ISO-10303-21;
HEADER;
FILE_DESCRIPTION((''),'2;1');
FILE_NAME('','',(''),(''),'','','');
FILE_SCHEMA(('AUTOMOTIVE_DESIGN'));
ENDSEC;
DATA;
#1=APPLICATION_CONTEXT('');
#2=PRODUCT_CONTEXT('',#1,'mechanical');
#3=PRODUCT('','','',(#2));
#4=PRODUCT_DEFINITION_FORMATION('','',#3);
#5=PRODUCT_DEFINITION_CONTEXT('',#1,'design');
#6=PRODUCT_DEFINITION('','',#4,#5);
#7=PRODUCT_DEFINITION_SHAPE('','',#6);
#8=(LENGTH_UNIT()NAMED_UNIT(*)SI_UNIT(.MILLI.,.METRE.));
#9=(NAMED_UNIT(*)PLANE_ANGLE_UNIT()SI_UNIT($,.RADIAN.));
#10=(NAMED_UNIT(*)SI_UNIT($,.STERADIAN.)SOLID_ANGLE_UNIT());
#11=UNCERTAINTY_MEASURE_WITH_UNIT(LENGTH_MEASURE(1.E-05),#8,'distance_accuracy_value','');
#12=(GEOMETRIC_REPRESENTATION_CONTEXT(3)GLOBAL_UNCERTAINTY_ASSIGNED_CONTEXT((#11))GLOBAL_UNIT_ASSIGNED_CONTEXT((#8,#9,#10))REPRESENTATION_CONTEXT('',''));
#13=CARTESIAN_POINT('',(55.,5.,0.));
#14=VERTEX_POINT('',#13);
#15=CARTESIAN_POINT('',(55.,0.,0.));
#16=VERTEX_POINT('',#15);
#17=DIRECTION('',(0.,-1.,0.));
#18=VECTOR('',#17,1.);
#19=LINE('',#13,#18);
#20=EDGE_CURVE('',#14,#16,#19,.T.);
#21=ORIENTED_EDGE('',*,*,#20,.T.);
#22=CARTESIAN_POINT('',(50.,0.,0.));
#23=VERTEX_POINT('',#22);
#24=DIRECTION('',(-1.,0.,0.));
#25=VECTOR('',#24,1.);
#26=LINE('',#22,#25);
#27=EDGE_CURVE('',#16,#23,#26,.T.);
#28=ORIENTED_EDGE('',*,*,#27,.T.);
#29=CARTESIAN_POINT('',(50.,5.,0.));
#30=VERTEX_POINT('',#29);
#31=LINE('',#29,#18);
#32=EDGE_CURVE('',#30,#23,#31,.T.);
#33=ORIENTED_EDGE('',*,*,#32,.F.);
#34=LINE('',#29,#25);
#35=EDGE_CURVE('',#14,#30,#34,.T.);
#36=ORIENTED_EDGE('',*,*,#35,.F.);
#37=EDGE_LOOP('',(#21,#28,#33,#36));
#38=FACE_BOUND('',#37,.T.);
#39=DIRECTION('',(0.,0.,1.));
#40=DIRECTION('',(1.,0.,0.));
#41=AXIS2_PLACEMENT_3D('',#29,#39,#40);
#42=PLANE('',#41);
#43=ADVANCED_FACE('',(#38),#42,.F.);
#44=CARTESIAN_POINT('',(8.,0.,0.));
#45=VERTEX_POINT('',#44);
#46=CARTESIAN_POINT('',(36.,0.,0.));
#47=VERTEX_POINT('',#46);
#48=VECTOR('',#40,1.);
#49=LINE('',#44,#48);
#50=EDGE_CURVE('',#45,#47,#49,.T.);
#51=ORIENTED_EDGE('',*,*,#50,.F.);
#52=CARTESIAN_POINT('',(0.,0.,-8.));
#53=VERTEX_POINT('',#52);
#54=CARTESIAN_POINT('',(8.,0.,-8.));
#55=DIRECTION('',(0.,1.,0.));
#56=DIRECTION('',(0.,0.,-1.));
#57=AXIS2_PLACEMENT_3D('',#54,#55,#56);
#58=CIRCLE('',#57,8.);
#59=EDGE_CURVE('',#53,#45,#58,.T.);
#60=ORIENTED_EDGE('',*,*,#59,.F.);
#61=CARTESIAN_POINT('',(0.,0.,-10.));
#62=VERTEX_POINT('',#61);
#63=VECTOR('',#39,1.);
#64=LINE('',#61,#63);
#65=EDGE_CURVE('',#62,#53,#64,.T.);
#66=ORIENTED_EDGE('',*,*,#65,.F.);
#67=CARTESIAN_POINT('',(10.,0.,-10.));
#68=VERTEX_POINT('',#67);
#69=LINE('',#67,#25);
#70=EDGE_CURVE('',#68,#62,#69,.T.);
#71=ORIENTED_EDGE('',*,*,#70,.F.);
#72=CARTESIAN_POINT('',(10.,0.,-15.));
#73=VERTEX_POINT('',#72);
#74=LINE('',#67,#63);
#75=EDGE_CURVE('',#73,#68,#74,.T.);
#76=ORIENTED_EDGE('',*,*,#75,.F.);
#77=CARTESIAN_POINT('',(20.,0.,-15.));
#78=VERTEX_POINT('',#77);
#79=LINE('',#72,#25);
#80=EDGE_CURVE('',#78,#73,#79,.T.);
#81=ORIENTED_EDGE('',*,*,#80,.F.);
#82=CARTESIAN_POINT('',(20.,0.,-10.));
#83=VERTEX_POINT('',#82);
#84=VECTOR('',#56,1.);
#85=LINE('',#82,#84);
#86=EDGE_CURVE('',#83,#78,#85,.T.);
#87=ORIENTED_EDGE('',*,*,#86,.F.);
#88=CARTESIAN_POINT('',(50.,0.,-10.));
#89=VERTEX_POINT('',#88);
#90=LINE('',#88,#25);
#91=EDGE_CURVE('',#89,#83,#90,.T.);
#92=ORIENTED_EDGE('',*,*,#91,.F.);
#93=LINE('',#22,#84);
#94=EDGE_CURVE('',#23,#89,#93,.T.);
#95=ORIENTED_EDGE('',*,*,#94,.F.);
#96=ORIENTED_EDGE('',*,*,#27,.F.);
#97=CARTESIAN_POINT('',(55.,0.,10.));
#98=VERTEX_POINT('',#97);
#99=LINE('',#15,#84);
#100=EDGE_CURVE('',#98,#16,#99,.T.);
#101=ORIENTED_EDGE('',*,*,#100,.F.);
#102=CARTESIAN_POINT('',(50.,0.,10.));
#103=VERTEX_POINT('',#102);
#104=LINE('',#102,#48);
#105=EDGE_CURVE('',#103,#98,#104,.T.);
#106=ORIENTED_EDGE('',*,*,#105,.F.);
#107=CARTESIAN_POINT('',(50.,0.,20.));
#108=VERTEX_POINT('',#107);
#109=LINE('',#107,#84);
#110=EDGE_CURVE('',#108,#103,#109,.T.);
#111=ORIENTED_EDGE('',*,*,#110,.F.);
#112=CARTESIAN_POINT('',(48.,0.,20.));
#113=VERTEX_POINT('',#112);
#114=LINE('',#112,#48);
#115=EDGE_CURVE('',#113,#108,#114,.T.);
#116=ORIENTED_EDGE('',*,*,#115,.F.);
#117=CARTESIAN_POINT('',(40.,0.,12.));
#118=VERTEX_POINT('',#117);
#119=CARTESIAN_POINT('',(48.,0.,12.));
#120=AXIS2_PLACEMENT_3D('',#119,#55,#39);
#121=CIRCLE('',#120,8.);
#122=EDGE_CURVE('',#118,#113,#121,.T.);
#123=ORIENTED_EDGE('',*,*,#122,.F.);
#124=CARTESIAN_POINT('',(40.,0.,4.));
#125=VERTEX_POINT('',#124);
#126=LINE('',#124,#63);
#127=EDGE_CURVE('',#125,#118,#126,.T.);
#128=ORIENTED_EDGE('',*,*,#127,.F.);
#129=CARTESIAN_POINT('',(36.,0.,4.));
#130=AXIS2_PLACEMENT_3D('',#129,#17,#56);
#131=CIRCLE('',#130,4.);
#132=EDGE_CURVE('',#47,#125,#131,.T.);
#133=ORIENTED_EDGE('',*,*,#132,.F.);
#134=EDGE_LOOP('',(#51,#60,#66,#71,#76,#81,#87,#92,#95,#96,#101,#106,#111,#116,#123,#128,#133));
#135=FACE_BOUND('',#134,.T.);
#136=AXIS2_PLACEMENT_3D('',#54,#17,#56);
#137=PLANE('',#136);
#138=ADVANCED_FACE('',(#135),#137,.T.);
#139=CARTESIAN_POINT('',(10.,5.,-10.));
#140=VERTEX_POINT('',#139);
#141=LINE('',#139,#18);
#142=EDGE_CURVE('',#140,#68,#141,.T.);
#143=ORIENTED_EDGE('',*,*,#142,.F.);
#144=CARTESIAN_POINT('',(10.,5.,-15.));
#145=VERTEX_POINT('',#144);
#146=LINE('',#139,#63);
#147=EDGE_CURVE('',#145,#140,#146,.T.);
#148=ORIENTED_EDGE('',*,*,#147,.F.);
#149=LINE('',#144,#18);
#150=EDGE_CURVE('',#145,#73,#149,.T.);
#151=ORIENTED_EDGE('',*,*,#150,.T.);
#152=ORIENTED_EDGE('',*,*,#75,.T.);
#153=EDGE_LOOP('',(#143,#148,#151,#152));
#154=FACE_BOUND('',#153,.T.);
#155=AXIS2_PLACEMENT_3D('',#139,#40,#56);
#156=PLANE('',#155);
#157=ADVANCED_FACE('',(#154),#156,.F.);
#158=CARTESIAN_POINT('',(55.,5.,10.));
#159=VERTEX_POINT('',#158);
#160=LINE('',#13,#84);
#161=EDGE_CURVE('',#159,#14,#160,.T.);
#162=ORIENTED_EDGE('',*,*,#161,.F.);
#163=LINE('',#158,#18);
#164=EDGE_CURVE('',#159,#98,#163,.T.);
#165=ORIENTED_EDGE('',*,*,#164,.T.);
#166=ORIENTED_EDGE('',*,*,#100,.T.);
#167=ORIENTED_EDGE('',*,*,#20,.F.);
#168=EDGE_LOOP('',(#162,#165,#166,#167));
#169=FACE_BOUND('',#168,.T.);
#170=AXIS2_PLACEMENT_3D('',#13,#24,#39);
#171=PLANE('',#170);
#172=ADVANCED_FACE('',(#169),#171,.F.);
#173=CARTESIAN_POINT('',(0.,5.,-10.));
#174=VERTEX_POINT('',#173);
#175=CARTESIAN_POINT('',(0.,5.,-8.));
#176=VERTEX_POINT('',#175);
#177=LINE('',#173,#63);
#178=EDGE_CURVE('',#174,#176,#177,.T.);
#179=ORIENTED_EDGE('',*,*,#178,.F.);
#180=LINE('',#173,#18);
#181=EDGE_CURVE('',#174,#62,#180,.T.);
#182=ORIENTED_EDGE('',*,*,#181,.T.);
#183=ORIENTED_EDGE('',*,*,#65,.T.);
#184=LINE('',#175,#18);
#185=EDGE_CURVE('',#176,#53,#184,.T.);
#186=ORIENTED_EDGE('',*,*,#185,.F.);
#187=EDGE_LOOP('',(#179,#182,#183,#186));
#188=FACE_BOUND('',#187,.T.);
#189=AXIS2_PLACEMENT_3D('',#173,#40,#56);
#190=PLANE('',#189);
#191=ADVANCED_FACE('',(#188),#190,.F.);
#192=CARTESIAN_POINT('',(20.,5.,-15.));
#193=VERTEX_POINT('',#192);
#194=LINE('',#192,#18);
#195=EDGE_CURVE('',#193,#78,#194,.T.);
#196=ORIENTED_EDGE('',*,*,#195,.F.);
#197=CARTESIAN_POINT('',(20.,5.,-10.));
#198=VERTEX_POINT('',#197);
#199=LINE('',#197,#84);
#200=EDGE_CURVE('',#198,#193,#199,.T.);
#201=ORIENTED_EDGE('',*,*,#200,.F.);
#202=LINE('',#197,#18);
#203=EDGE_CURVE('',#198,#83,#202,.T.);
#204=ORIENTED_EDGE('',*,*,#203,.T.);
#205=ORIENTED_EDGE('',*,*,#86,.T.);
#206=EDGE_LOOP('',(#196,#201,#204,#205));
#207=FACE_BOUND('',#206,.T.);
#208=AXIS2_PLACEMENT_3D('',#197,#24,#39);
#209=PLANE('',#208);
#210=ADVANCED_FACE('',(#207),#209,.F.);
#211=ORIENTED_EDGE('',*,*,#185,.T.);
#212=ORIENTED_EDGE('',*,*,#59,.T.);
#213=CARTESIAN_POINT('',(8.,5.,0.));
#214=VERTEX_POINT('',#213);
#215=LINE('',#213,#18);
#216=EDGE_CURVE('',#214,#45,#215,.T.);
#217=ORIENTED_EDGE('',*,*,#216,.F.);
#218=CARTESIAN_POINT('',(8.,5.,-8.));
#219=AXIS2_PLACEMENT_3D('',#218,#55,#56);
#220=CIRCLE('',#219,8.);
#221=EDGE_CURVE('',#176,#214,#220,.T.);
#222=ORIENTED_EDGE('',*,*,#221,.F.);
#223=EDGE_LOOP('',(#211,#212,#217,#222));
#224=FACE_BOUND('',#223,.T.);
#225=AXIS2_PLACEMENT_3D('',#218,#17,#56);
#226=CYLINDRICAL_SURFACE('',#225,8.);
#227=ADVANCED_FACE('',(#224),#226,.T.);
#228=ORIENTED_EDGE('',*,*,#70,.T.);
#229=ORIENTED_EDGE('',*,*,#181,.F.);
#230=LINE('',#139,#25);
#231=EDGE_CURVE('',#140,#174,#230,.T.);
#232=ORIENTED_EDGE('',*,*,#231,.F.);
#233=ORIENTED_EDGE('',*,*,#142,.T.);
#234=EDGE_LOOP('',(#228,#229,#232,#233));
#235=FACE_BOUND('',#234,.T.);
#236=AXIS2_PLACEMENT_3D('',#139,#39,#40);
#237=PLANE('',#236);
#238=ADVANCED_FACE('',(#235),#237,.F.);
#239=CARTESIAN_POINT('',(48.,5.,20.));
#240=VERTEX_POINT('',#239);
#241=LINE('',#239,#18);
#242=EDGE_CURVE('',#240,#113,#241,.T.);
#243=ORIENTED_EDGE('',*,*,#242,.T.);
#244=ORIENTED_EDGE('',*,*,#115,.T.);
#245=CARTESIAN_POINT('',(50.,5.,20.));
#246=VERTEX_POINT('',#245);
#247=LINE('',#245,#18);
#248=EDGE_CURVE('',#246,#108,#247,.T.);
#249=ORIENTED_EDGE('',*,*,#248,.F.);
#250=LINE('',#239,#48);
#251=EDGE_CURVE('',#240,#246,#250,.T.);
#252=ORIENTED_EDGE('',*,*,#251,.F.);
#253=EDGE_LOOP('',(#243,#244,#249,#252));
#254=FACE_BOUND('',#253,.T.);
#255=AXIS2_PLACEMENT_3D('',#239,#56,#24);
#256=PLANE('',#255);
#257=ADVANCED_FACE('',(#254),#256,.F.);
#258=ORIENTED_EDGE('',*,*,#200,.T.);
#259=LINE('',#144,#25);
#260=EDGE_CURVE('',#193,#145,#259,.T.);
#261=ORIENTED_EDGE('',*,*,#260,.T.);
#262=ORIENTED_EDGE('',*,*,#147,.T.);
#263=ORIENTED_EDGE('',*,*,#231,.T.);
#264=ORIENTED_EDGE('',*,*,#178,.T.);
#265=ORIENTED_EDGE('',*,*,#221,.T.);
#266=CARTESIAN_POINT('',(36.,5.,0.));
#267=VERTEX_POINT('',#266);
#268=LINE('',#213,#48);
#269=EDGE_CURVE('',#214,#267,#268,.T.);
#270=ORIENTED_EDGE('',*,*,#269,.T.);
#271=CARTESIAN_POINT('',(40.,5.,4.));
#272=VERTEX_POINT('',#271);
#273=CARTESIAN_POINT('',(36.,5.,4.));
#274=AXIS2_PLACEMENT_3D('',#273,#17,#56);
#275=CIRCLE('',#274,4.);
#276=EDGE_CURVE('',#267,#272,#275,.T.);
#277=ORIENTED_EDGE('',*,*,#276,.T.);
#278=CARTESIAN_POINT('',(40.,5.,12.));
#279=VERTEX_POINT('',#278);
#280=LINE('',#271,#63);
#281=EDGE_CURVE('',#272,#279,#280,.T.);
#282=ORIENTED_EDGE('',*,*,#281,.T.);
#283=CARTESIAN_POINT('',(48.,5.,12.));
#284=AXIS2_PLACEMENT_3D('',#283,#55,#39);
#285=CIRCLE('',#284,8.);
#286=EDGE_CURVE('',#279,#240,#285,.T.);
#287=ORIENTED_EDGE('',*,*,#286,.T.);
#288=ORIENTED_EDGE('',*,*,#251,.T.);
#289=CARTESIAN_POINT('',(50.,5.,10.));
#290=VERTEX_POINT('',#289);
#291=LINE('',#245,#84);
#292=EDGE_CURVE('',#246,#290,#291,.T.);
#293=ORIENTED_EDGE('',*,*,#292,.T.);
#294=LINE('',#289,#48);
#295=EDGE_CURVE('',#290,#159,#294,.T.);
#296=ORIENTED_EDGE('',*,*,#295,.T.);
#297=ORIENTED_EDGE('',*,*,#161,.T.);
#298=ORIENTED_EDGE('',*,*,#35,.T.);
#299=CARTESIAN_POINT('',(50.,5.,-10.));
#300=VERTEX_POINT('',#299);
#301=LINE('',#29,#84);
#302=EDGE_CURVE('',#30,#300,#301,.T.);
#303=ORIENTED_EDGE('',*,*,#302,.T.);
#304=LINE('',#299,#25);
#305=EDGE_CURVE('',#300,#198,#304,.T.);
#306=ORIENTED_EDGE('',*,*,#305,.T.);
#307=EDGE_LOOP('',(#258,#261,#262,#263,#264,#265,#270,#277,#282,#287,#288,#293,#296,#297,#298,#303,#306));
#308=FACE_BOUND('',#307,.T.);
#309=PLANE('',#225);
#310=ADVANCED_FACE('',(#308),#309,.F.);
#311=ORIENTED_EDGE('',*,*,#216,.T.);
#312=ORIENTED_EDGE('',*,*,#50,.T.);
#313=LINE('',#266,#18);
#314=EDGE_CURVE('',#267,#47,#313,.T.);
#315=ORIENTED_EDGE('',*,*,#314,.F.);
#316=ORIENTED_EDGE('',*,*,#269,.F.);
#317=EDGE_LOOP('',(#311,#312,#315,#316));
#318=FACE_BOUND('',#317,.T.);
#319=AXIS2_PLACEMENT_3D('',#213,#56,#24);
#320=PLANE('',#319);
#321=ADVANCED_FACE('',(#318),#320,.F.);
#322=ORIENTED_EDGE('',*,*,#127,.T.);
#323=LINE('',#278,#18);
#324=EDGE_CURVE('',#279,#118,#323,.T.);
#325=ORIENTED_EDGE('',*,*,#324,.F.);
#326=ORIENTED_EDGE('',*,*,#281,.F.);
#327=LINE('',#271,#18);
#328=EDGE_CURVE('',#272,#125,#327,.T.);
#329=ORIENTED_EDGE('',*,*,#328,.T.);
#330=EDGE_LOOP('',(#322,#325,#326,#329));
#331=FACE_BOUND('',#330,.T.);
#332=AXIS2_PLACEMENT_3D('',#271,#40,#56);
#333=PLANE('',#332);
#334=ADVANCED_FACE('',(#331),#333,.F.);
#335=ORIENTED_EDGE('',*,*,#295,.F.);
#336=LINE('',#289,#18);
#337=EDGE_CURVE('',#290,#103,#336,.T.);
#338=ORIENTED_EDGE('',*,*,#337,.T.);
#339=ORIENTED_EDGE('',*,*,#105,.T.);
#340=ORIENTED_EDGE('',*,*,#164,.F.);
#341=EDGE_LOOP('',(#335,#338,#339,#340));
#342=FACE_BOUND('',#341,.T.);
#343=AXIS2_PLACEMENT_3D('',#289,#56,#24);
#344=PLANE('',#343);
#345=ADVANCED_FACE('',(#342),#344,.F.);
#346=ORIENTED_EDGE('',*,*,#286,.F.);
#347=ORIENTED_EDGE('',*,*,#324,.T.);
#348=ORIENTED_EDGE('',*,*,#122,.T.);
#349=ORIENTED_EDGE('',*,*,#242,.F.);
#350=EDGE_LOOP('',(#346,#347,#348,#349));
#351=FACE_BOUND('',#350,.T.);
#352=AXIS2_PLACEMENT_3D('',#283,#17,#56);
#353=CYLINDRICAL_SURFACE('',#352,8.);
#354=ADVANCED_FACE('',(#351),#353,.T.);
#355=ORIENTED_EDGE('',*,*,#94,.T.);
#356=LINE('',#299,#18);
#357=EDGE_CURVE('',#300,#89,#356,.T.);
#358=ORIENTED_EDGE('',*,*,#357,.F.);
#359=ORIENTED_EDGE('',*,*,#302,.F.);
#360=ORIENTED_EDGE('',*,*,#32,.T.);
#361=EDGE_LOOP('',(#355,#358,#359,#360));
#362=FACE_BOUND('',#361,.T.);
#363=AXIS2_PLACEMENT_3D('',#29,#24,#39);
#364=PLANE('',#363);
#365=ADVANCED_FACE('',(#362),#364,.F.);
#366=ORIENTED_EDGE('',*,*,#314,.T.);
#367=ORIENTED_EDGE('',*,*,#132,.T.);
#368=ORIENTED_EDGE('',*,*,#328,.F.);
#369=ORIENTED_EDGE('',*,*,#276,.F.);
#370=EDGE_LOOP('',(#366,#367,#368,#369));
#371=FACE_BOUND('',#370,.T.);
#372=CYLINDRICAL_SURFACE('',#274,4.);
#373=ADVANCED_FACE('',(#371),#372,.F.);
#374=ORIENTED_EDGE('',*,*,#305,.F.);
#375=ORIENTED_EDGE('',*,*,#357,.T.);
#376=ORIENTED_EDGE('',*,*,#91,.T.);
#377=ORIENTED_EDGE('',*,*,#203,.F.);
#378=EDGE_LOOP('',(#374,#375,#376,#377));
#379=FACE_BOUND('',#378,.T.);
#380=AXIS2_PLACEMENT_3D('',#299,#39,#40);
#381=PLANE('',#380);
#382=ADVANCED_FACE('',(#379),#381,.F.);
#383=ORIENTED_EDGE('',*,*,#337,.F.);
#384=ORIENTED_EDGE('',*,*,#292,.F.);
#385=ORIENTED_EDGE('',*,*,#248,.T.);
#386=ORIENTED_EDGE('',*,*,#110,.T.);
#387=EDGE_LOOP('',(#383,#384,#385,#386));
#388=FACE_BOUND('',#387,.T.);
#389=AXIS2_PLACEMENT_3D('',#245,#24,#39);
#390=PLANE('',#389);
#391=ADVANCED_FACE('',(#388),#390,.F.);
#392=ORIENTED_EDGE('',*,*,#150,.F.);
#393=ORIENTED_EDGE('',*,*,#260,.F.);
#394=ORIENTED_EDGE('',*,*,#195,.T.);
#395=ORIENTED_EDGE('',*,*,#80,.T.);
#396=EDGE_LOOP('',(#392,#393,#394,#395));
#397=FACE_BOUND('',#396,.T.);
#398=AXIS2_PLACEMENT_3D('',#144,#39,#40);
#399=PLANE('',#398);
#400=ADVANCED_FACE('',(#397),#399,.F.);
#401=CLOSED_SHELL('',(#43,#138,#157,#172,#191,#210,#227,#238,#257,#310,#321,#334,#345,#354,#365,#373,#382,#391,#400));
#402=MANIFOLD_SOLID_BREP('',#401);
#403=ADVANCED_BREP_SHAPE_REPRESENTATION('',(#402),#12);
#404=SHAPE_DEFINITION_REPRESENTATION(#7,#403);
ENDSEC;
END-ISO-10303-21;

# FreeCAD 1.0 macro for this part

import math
import FreeCAD as App
import Part
import Sketcher

V = App.Vector
Q = App.Units.Quantity

doc = App.newDocument("Part")
params = doc.addObject("Spreadsheet::Sheet", "Params")
for row, (alias, value) in enumerate([
    ("sketch1_radius", "4 mm"),
    ("sketch1_radius2", "8 mm"),
    ("sketch1_width", "28 mm"),
    ("sketch1_width2", "2 mm"),
    ("sketch1_width3", "5 mm"),
    ("pad1_length", "5 mm"),
], start=1):
    params.set(f"A{row}", alias)
    params.set(f"B{row}", "=" + value)
    params.setAlias(f"B{row}", alias)

body = doc.addObject("PartDesign::Body", "Body")

# Sketch on XZ plane
sketch1 = body.newObject("Sketcher::SketchObject", "Sketch")
sketch1.AttachmentSupport = (doc.getObject("XZ_Plane"), [""])
sketch1.MapMode = "FlatFace"
sketch1.addGeometry([
    Part.LineSegment(V(8, 0, 0), V(36, 0, 0)),  # 0
    Part.ArcOfCircle(Part.Circle(V(36, 4, 0), V(0, 0, 1), 4), math.radians(-90), math.radians(0)),  # 1
    Part.LineSegment(V(40, 4, 0), V(40, 12, 0)),  # 2
    Part.ArcOfCircle(Part.Circle(V(48, 12, 0), V(0, 0, 1), 8), math.radians(90), math.radians(180)),  # 3
    Part.LineSegment(V(48, 20, 0), V(50, 20, 0)),  # 4
    Part.LineSegment(V(50, 20, 0), V(50, 10, 0)),  # 5
    Part.LineSegment(V(50, 10, 0), V(55, 10, 0)),  # 6
    Part.LineSegment(V(55, 10, 0), V(55, 0, 0)),  # 7
    Part.LineSegment(V(55, 0, 0), V(50, 0, 0)),  # 8
    Part.LineSegment(V(50, 0, 0), V(50, -10, 0)),  # 9
    Part.LineSegment(V(50, -10, 0), V(20, -10, 0)),  # 10
    Part.LineSegment(V(20, -10, 0), V(20, -15, 0)),  # 11
    Part.LineSegment(V(20, -15, 0), V(10, -15, 0)),  # 12
    Part.LineSegment(V(10, -15, 0), V(10, -10, 0)),  # 13
    Part.LineSegment(V(10, -10, 0), V(0, -10, 0)),  # 14
    Part.LineSegment(V(0, -10, 0), V(0, -8, 0)),  # 15
    Part.ArcOfCircle(Part.Circle(V(8, -8, 0), V(0, 0, 1), 8), math.radians(90), math.radians(180)),  # 16
], False)
sketch1.addConstraint([
    Sketcher.Constraint("Tangent", 0, 2, 1, 1),
    Sketcher.Constraint("Tangent", 1, 2, 2, 1),
    Sketcher.Constraint("Tangent", 2, 2, 3, 2),
    Sketcher.Constraint("Tangent", 3, 1, 4, 1),
    Sketcher.Constraint("Coincident", 4, 2, 5, 1),
    Sketcher.Constraint("Coincident", 5, 2, 6, 1),
    Sketcher.Constraint("Coincident", 6, 2, 7, 1),
    Sketcher.Constraint("Coincident", 7, 2, 8, 1),
    Sketcher.Constraint("Coincident", 8, 2, 9, 1),
    Sketcher.Constraint("Coincident", 9, 2, 10, 1),
    Sketcher.Constraint("Coincident", 10, 2, 11, 1),
    Sketcher.Constraint("Coincident", 11, 2, 12, 1),
    Sketcher.Constraint("Coincident", 12, 2, 13, 1),
    Sketcher.Constraint("Coincident", 13, 2, 14, 1),
    Sketcher.Constraint("Coincident", 14, 2, 15, 1),
    Sketcher.Constraint("Tangent", 15, 2, 16, 2),
    Sketcher.Constraint("Tangent", 16, 1, 0, 1),
    Sketcher.Constraint("Horizontal", 0),
    Sketcher.Constraint("Vertical", 2),
    Sketcher.Constraint("Horizontal", 4),
    Sketcher.Constraint("Vertical", 5),
    Sketcher.Constraint("Horizontal", 6),
    Sketcher.Constraint("Vertical", 7),
    Sketcher.Constraint("Horizontal", 8),
    Sketcher.Constraint("Vertical", 9),
    Sketcher.Constraint("Horizontal", 10),
    Sketcher.Constraint("Vertical", 11),
    Sketcher.Constraint("Horizontal", 12),
    Sketcher.Constraint("Vertical", 13),
    Sketcher.Constraint("Horizontal", 14),
    Sketcher.Constraint("Vertical", 15),
    Sketcher.Constraint("Equal", 3, 16),
    Sketcher.Constraint("Symmetric", 5, 2, 9, 2, -1),
    Sketcher.Constraint("PointOnObject", 0, 2, -1),
    Sketcher.Constraint("PointOnObject", 7, 2, -1),
    Sketcher.Constraint("PointOnObject", 14, 2, -2),
    Sketcher.Constraint("Horizontal", 10, 2, 13, 2),
    Sketcher.Constraint("Equal", 12, 14),
    Sketcher.Constraint("Equal", 14, 5),
    Sketcher.Constraint("Equal", 5, 7),
    Sketcher.Constraint("Equal", 8, 11),
    Sketcher.Constraint("Equal", 4, 15),
    Sketcher.Constraint("Radius", 1, Q("4 mm")),
    Sketcher.Constraint("Radius", 3, Q("8 mm")),
    Sketcher.Constraint("DistanceX", 0, 1, 0, 2, Q("28 mm")),
    Sketcher.Constraint("DistanceX", 4, 1, 4, 2, Q("2 mm")),
    Sketcher.Constraint("DistanceX", 6, 1, 6, 2, Q("5 mm")),
])
sketch1.setExpression("Constraints[42]", "Params.sketch1_radius")
sketch1.setExpression("Constraints[43]", "Params.sketch1_radius2")
sketch1.setExpression("Constraints[44]", "Params.sketch1_width")
sketch1.setExpression("Constraints[45]", "Params.sketch1_width2")
sketch1.setExpression("Constraints[46]", "Params.sketch1_width3")
pad1 = body.newObject("PartDesign::Pad", "Pad")
pad1.Profile = sketch1
pad1.setExpression("Length", "Params.pad1_length")
pad1.Reversed = True

doc.recompute()
